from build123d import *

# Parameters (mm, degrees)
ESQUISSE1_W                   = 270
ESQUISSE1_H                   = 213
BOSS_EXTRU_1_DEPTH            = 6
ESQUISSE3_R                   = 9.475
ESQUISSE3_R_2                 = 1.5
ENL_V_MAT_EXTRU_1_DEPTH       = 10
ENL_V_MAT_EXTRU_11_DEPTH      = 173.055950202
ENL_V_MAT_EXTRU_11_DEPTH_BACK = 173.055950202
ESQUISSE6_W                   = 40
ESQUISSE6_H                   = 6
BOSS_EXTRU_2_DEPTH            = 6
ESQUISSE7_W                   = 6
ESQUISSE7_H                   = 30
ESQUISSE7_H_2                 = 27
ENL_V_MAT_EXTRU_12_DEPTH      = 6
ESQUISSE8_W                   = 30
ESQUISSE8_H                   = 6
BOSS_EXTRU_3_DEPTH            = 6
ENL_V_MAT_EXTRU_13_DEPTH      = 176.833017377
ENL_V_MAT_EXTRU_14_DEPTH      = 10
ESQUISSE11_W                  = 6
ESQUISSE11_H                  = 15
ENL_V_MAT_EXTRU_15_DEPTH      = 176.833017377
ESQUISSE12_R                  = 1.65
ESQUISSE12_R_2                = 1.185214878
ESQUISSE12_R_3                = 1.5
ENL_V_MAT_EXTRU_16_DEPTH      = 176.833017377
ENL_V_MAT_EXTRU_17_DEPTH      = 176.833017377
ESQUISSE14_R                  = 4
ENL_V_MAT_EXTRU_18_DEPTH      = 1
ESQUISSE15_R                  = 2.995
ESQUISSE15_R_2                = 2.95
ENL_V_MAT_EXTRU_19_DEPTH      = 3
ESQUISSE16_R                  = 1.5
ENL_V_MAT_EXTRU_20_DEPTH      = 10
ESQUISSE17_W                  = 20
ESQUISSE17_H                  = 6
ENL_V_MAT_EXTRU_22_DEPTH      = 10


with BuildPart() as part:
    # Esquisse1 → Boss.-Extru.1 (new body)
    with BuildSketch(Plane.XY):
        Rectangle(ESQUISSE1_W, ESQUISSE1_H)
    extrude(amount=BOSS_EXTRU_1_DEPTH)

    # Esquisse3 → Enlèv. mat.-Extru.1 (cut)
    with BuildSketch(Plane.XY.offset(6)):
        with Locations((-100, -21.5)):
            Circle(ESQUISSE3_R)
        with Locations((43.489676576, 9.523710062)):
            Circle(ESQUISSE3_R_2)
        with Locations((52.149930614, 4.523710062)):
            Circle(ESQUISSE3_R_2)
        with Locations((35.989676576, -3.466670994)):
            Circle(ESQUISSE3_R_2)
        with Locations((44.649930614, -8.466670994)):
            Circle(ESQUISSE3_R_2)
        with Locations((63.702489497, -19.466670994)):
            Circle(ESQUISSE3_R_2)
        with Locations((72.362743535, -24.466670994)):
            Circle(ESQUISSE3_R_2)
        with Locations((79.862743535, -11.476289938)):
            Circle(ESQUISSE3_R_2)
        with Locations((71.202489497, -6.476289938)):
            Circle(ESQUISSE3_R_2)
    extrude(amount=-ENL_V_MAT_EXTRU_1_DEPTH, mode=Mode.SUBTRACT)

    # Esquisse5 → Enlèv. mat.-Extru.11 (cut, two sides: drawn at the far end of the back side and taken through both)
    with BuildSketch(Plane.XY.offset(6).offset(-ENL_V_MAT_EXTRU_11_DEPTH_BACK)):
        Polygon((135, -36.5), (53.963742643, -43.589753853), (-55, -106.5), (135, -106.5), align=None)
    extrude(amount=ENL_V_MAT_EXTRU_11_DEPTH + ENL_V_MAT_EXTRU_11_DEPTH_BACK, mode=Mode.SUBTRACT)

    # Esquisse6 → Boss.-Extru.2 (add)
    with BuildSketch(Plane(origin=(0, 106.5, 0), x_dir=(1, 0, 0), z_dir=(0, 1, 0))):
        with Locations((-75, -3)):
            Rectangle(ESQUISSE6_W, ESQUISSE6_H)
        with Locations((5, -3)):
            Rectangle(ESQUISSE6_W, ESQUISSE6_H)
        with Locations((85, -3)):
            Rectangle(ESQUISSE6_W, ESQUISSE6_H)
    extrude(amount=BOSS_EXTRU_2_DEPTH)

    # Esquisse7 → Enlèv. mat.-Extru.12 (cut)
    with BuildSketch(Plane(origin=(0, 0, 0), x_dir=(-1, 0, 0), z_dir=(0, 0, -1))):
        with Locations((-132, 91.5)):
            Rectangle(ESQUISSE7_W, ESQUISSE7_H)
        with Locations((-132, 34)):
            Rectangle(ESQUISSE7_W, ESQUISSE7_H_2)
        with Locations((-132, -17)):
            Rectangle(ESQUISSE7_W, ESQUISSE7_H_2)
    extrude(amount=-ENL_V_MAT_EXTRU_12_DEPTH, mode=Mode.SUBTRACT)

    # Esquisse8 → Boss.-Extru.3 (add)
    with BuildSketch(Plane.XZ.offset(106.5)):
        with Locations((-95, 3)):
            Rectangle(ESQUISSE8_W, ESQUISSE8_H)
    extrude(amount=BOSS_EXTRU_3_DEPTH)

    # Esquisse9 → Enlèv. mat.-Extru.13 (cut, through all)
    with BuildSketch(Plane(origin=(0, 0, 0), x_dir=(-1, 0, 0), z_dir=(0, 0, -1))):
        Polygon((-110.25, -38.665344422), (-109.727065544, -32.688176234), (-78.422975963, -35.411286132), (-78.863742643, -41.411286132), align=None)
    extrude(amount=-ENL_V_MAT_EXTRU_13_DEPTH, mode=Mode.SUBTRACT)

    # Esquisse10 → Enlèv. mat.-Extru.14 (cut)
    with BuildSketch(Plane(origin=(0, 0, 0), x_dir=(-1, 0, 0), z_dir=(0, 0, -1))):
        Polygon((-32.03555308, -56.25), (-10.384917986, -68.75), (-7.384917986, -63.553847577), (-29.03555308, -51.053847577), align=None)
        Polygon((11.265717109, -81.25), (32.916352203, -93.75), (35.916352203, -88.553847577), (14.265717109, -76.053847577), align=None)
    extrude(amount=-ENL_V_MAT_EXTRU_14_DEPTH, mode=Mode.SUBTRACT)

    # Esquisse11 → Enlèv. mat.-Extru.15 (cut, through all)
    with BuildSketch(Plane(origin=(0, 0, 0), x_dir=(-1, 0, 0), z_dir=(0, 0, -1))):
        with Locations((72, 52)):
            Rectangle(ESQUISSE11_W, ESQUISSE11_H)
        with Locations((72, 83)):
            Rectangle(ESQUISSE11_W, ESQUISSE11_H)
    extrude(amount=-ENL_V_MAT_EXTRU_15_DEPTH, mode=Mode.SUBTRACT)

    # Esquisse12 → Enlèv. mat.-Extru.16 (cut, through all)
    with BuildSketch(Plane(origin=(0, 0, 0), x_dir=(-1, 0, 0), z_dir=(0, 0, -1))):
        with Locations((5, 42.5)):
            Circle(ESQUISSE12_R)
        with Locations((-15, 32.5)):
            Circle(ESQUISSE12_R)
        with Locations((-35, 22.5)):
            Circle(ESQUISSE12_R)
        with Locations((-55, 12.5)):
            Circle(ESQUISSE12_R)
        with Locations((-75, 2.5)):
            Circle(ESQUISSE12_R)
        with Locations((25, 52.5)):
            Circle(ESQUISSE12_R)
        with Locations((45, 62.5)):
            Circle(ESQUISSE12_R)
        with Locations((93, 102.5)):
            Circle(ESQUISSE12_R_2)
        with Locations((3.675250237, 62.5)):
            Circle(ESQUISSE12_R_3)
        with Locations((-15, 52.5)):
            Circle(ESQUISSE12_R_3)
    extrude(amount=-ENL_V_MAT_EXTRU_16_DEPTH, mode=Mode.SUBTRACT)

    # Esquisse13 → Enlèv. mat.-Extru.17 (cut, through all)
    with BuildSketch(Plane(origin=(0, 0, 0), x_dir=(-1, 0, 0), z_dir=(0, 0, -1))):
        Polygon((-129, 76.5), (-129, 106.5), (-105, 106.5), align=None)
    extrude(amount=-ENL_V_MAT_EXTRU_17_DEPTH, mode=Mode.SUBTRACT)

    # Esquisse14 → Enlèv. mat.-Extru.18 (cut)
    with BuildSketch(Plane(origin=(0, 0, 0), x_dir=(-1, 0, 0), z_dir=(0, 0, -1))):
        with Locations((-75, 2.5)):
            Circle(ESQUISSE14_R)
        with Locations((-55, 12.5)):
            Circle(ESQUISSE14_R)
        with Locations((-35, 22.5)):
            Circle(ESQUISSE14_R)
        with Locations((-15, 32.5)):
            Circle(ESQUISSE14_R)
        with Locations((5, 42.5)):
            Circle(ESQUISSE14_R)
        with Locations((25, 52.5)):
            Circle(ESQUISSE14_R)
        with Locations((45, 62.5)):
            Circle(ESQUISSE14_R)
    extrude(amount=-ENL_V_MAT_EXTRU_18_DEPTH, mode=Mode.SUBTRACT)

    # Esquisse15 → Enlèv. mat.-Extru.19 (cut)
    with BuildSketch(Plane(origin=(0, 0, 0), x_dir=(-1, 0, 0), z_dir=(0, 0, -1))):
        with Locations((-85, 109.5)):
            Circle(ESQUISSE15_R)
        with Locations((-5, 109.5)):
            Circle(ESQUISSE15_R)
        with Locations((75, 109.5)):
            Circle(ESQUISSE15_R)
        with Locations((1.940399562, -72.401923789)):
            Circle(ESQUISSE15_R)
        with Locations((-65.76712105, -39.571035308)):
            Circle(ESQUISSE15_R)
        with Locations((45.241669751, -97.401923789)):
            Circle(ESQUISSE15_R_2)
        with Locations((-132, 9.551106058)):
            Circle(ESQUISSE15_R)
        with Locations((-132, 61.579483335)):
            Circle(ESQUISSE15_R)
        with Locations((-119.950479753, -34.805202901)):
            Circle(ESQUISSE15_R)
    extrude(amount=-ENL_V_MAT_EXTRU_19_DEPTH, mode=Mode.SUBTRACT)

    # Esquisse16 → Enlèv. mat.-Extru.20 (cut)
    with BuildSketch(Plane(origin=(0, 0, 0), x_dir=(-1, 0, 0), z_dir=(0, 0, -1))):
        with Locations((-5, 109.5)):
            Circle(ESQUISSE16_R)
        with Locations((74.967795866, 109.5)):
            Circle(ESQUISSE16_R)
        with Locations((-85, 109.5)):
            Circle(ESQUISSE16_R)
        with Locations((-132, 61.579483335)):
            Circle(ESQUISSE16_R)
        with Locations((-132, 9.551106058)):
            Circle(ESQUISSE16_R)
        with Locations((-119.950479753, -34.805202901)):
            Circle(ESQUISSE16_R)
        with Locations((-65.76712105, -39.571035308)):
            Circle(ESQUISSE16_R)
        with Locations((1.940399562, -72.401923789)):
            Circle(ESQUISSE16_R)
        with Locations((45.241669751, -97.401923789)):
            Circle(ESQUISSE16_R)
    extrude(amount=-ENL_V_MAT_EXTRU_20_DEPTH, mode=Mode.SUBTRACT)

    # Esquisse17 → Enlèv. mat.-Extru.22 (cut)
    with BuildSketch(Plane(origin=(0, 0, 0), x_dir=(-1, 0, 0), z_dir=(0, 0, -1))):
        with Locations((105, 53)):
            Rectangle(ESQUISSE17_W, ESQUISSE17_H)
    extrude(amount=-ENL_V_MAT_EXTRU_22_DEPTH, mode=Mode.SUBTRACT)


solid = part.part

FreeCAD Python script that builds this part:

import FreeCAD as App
import Part
import Sketcher
Q = App.Units.Quantity

doc = App.newDocument("Part")
body = doc.addObject("PartDesign::Body", "Body")

sketch1 = body.newObject("Sketcher::SketchObject", "Sketch")
sketch1.AttachmentSupport = (doc.getObject("XY_Plane"), [""])
sketch1.MapMode = "FlatFace"
sketch1.addGeometry(Part.LineSegment(App.Vector(-135, 106, 0), App.Vector(-135, -106, 0)), False)
sketch1.addGeometry(Part.LineSegment(App.Vector(-135, -106, 0), App.Vector(135, -106, 0)), False)
sketch1.addGeometry(Part.LineSegment(App.Vector(135, -106, 0), App.Vector(135, 106, 0)), False)
sketch1.addGeometry(Part.LineSegment(App.Vector(135, 106, 0), App.Vector(-135, 106, 0)), False)
sketch1.addConstraint(Sketcher.Constraint("Coincident", 0, 2, 1, 1))
sketch1.addConstraint(Sketcher.Constraint("Coincident", 1, 2, 2, 1))
sketch1.addConstraint(Sketcher.Constraint("Coincident", 2, 2, 3, 1))
sketch1.addConstraint(Sketcher.Constraint("Coincident", 3, 2, 0, 1))
sketch1.addConstraint(Sketcher.Constraint("Vertical", 0))
sketch1.addConstraint(Sketcher.Constraint("Horizontal", 1))
sketch1.addConstraint(Sketcher.Constraint("Vertical", 2))
sketch1.addConstraint(Sketcher.Constraint("Horizontal", 3))
sketch1.addConstraint(Sketcher.Constraint("Symmetric", 0, 2, 2, 2, -1, 1))
sketch1.addConstraint(Sketcher.Constraint("DistanceX", 1, 1, 1, 2, 270.0))
sketch1.addConstraint(Sketcher.Constraint("DistanceY", 0, 2, 0, 1, 213.0))
pad1 = body.newObject("PartDesign::Pad", "Pad")
pad1.Profile = sketch1
pad1.Length = 6

sketch2 = body.newObject("Sketcher::SketchObject", "Sketch001")
sketch2.AttachmentSupport = (doc.getObject("XY_Plane"), [""])
sketch2.MapMode = "FlatFace"
sketch2.AttachmentOffset = App.Placement(App.Vector(0, 0, 6), App.Rotation())
sketch2.addGeometry(Part.Circle(App.Vector(-100, -21.5, 0), App.Vector(0, 0, 1), 9.5), False)
sketch2.addGeometry(Part.Circle(App.Vector(43.5, 9.5, 0), App.Vector(0, 0, 1), 1.5), False)
sketch2.addGeometry(Part.Circle(App.Vector(52.1, 4.5, 0), App.Vector(0, 0, 1), 1.5), False)
sketch2.addGeometry(Part.Circle(App.Vector(36, -3.5, 0), App.Vector(0, 0, 1), 1.5), False)
sketch2.addGeometry(Part.Circle(App.Vector(44.6, -8.5, 0), App.Vector(0, 0, 1), 1.5), False)
sketch2.addGeometry(Part.Circle(App.Vector(63.7, -19.5, 0), App.Vector(0, 0, 1), 1.5), False)
sketch2.addGeometry(Part.Circle(App.Vector(72.4, -24.5, 0), App.Vector(0, 0, 1), 1.5), False)
sketch2.addGeometry(Part.Circle(App.Vector(79.9, -11.5, 0), App.Vector(0, 0, 1), 1.5), False)
sketch2.addGeometry(Part.Circle(App.Vector(71.2, -6.5, 0), App.Vector(0, 0, 1), 1.5), False)
sketch2.addConstraint(Sketcher.Constraint("Equal", 1, 2))
sketch2.addConstraint(Sketcher.Constraint("Equal", 2, 3))
sketch2.addConstraint(Sketcher.Constraint("Equal", 3, 4))
sketch2.addConstraint(Sketcher.Constraint("Equal", 4, 5))
sketch2.addConstraint(Sketcher.Constraint("Equal", 5, 6))
sketch2.addConstraint(Sketcher.Constraint("Equal", 6, 7))
sketch2.addConstraint(Sketcher.Constraint("Equal", 7, 8))
sketch2.addConstraint(Sketcher.Constraint("Diameter", 1, 3.0))
sketch2.addConstraint(Sketcher.Constraint("Diameter", 0, 18.95))
sketch2.addConstraint(Sketcher.Constraint("DistanceX", 0, 3, -1, 1, 100.0))
sketch2.addConstraint(Sketcher.Constraint("DistanceY", 2, 3, 1, 3, 5.0))
sketch2.addConstraint(Sketcher.Constraint("DistanceY", 4, 3, 3, 3, 5.0))
sketch2.addConstraint(Sketcher.Constraint("DistanceY", 5, 3, 4, 3, 11.0))
sketch2.addConstraint(Sketcher.Constraint("DistanceY", 6, 3, 5, 3, 5.0))
sketch2.addConstraint(Sketcher.Constraint("DistanceY", 7, 3, 2, 3, 16.0))
sketch2.addConstraint(Sketcher.Constraint("DistanceY", 7, 3, 8, 3, 5.0))
sketch2.addConstraint(Sketcher.Constraint("DistanceY", 0, 3, -1, 1, 21.5))
sketch2.addConstraint(Sketcher.Constraint("DistanceX", 3, 3, 1, 3, 7.5))
sketch2.addConstraint(Sketcher.Constraint("DistanceX", 4, 3, 2, 3, 7.5))
sketch2.addConstraint(Sketcher.Constraint("DistanceX", 6, 3, 7, 3, 7.5))
sketch2.addConstraint(Sketcher.Constraint("DistanceX", 5, 3, 8, 3, 7.5))
sketch2.addConstraint(Sketcher.Constraint("DistanceY", -1, 1, 1, 3, 9.52371))
sketch2.addConstraint(Sketcher.Constraint("DistanceX", -1, 1, 2, 3, 52.149931))
sketch2.addConstraint(Sketcher.Constraint("DistanceY", 3, 3, -1, 1, 3.466671))
sketch2.addConstraint(Sketcher.Constraint("DistanceX", -1, 1, 5, 3, 63.702489))
sketch2.addConstraint(Sketcher.Constraint("DistanceX", -1, 1, 1, 3, 43.489677))
sketch2.addConstraint(Sketcher.Constraint("DistanceX", -1, 1, 6, 3, 72.362744))
pocket1 = body.newObject("PartDesign::Pocket", "Pocket")
pocket1.Profile = sketch2
pocket1.Length = 10

sketch3 = body.newObject("Sketcher::SketchObject", "Sketch002")
sketch3.AttachmentSupport = (doc.getObject("XY_Plane"), [""])
sketch3.MapMode = "FlatFace"
sketch3.AttachmentOffset = App.Placement(App.Vector(0, 0, 6), App.Rotation())
sketch3.addGeometry(Part.LineSegment(App.Vector(135, -36, 0), App.Vector(54, -44, 0)), False)
sketch3.addGeometry(Part.LineSegment(App.Vector(54, -44, 0), App.Vector(-55, -106, 0)), False)
sketch3.addGeometry(Part.LineSegment(App.Vector(-55, -106, 0), App.Vector(135, -106, 0)), False)
sketch3.addGeometry(Part.LineSegment(App.Vector(135, -106, 0), App.Vector(135, -36, 0)), False)
sketch3.addConstraint(Sketcher.Constraint("Coincident", 0, 2, 1, 1))
sketch3.addConstraint(Sketcher.Constraint("Coincident", 1, 2, 2, 1))
sketch3.addConstraint(Sketcher.Constraint("Coincident", 2, 2, 3, 1))
sketch3.addConstraint(Sketcher.Constraint("Coincident", 3, 2, 0, 1))
sketch3.addConstraint(Sketcher.Constraint("Horizontal", 2))
sketch3.addConstraint(Sketcher.Constraint("Vertical", 3))
sketch3.addConstraint(Sketcher.Constraint("DistanceX", 2, 1, 2, 2, 190.0))
sketch3.addConstraint(Sketcher.Constraint("DistanceY", 3, 1, 3, 2, 70.0))
sketch3.addConstraint(Sketcher.Constraint("Angle", 0, Q("-175 deg")))
sketch3.addConstraint(Sketcher.Constraint("Angle", 1, Q("-150 deg")))
sketch3.addConstraint(Sketcher.Constraint("DistanceX", 1, 2, -1, 1, 55.0))
sketch3.addConstraint(Sketcher.Constraint("DistanceY", 1, 2, -1, 1, 106.5))
pocket2 = body.newObject("PartDesign::Pocket", "Pocket001")
pocket2.Profile = sketch3
pocket2.Type = "ThroughAll"
pocket2.Midplane = True

sketch4 = body.newObject("Sketcher::SketchObject", "Sketch003")
sketch4.AttachmentSupport = (doc.getObject("XZ_Plane"), [""])
sketch4.MapMode = "FlatFace"
sketch4.AttachmentOffset = App.Placement(App.Vector(0, 0, -106.5), App.Rotation())
sketch4.addGeometry(Part.LineSegment(App.Vector(-95, 0, 0), App.Vector(-95, 6, 0)), False)
sketch4.addGeometry(Part.LineSegment(App.Vector(-95, 6, 0), App.Vector(-55, 6, 0)), False)
sketch4.addGeometry(Part.LineSegment(App.Vector(-55, 6, 0), App.Vector(-55, 0, 0)), False)
sketch4.addGeometry(Part.LineSegment(App.Vector(-55, 0, 0), App.Vector(-95, 0, 0)), False)
sketch4.addGeometry(Part.LineSegment(App.Vector(-15, 0, 0), App.Vector(-15, 6, 0)), False)
sketch4.addGeometry(Part.LineSegment(App.Vector(-15, 6, 0), App.Vector(25, 6, 0)), False)
sketch4.addGeometry(Part.LineSegment(App.Vector(25, 6, 0), App.Vector(25, 0, 0)), False)
sketch4.addGeometry(Part.LineSegment(App.Vector(25, 0, 0), App.Vector(-15, 0, 0)), False)
sketch4.addGeometry(Part.LineSegment(App.Vector(65, 0, 0), App.Vector(65, 6, 0)), False)
sketch4.addGeometry(Part.LineSegment(App.Vector(65, 6, 0), App.Vector(105, 6, 0)), False)
sketch4.addGeometry(Part.LineSegment(App.Vector(105, 6, 0), App.Vector(105, 0, 0)), False)
sketch4.addGeometry(Part.LineSegment(App.Vector(105, 0, 0), App.Vector(65, 0, 0)), False)
sketch4.addConstraint(Sketcher.Constraint("Coincident", 0, 2, 1, 1))
sketch4.addConstraint(Sketcher.Constraint("Coincident", 1, 2, 2, 1))
sketch4.addConstraint(Sketcher.Constraint("Coincident", 2, 2, 3, 1))
sketch4.addConstraint(Sketcher.Constraint("Coincident", 3, 2, 0, 1))
sketch4.addConstraint(Sketcher.Constraint("Coincident", 4, 2, 5, 1))
sketch4.addConstraint(Sketcher.Constraint("Coincident", 5, 2, 6, 1))
sketch4.addConstraint(Sketcher.Constraint("Coincident", 6, 2, 7, 1))
sketch4.addConstraint(Sketcher.Constraint("Coincident", 7, 2, 4, 1))
sketch4.addConstraint(Sketcher.Constraint("Coincident", 8, 2, 9, 1))
sketch4.addConstraint(Sketcher.Constraint("Coincident", 9, 2, 10, 1))
sketch4.addConstraint(Sketcher.Constraint("Coincident", 10, 2, 11, 1))
sketch4.addConstraint(Sketcher.Constraint("Coincident", 11, 2, 8, 1))
sketch4.addConstraint(Sketcher.Constraint("Vertical", 0))
sketch4.addConstraint(Sketcher.Constraint("Horizontal", 1))
sketch4.addConstraint(Sketcher.Constraint("Vertical", 2))
sketch4.addConstraint(Sketcher.Constraint("Horizontal", 3))
sketch4.addConstraint(Sketcher.Constraint("Vertical", 4))
sketch4.addConstraint(Sketcher.Constraint("Horizontal", 5))
sketch4.addConstraint(Sketcher.Constraint("Vertical", 6))
sketch4.addConstraint(Sketcher.Constraint("Horizontal", 7))
sketch4.addConstraint(Sketcher.Constraint("Vertical", 8))
sketch4.addConstraint(Sketcher.Constraint("Horizontal", 9))
sketch4.addConstraint(Sketcher.Constraint("Vertical", 10))
sketch4.addConstraint(Sketcher.Constraint("Horizontal", 11))
sketch4.addConstraint(Sketcher.Constraint("PointOnObject", 2, 2, -1))
sketch4.addConstraint(Sketcher.Constraint("PointOnObject", 6, 2, -1))
sketch4.addConstraint(Sketcher.Constraint("PointOnObject", 10, 2, -1))
sketch4.addConstraint(Sketcher.Constraint("Horizontal", 1, 2, 4, 2))
sketch4.addConstraint(Sketcher.Constraint("Horizontal", 5, 2, 8, 2))
sketch4.addConstraint(Sketcher.Constraint("Equal", 3, 5))
sketch4.addConstraint(Sketcher.Constraint("Equal", 7, 9))
sketch4.addConstraint(Sketcher.Constraint("DistanceX", 1, 1, 1, 2, 40.0))
sketch4.addConstraint(Sketcher.Constraint("DistanceY", 0, 1, 0, 2, 6.0))
sketch4.addConstraint(Sketcher.Constraint("DistanceX", 0, 2, -1, 1, 95.0))
sketch4.addConstraint(Sketcher.Constraint("DistanceX", 4, 2, -1, 1, 15.0))
sketch4.addConstraint(Sketcher.Constraint("DistanceX", -1, 1, 8, 2, 65.0))
pad2 = body.newObject("PartDesign::Pad", "Pad001")
pad2.Profile = sketch4
pad2.Length = 6
pad2.Reversed = True

sketch5 = body.newObject("Sketcher::SketchObject", "Sketch004")
sketch5.AttachmentSupport = (doc.getObject("XY_Plane"), [""])
sketch5.MapMode = "FlatFace"
sketch5.addGeometry(Part.LineSegment(App.Vector(135, 106, 0), App.Vector(135, 76, 0)), False)
sketch5.addGeometry(Part.LineSegment(App.Vector(135, 76, 0), App.Vector(129, 76, 0)), False)
sketch5.addGeometry(Part.LineSegment(App.Vector(129, 76, 0), App.Vector(129, 106, 0)), False)
sketch5.addGeometry(Part.LineSegment(App.Vector(129, 106, 0), App.Vector(135, 106, 0)), False)
sketch5.addGeometry(Part.LineSegment(App.Vector(135, 48, 0), App.Vector(135, 20, 0)), False)
sketch5.addGeometry(Part.LineSegment(App.Vector(135, 20, 0), App.Vector(129, 20, 0)), False)
sketch5.addGeometry(Part.LineSegment(App.Vector(129, 20, 0), App.Vector(129, 48, 0)), False)
sketch5.addGeometry(Part.LineSegment(App.Vector(129, 48, 0), App.Vector(135, 48, 0)), False)
sketch5.addGeometry(Part.LineSegment(App.Vector(135, -4, 0), App.Vector(135, -30, 0)), False)
sketch5.addGeometry(Part.LineSegment(App.Vector(135, -30, 0), App.Vector(129, -30, 0)), False)
sketch5.addGeometry(Part.LineSegment(App.Vector(129, -30, 0), App.Vector(129, -4, 0)), False)
sketch5.addGeometry(Part.LineSegment(App.Vector(129, -4, 0), App.Vector(135, -4, 0)), False)
sketch5.addConstraint(Sketcher.Constraint("Coincident", 0, 2, 1, 1))
sketch5.addConstraint(Sketcher.Constraint("Coincident", 1, 2, 2, 1))
sketch5.addConstraint(Sketcher.Constraint("Coincident", 2, 2, 3, 1))
sketch5.addConstraint(Sketcher.Constraint("Coincident", 3, 2, 0, 1))
sketch5.addConstraint(Sketcher.Constraint("Coincident", 4, 2, 5, 1))
sketch5.addConstraint(Sketcher.Constraint("Coincident", 5, 2, 6, 1))
sketch5.addConstraint(Sketcher.Constraint("Coincident", 6, 2, 7, 1))
sketch5.addConstraint(Sketcher.Constraint("Coincident", 7, 2, 4, 1))
sketch5.addConstraint(Sketcher.Constraint("Coincident", 8, 2, 9, 1))
sketch5.addConstraint(Sketcher.Constraint("Coincident", 9, 2, 10, 1))
sketch5.addConstraint(Sketcher.Constraint("Coincident", 10, 2, 11, 1))
sketch5.addConstraint(Sketcher.Constraint("Coincident", 11, 2, 8, 1))
sketch5.addConstraint(Sketcher.Constraint("Vertical", 0))
sketch5.addConstraint(Sketcher.Constraint("Horizontal", 1))
sketch5.addConstraint(Sketcher.Constraint("Vertical", 2))
sketch5.addConstraint(Sketcher.Constraint("Horizontal", 3))
sketch5.addConstraint(Sketcher.Constraint("Vertical", 4))
sketch5.addConstraint(Sketcher.Constraint("Horizontal", 5))
sketch5.addConstraint(Sketcher.Constraint("Vertical", 6))
sketch5.addConstraint(Sketcher.Constraint("Horizontal", 7))
sketch5.addConstraint(Sketcher.Constraint("Vertical", 8))
sketch5.addConstraint(Sketcher.Constraint("Horizontal", 9))
sketch5.addConstraint(Sketcher.Constraint("Vertical", 10))
sketch5.addConstraint(Sketcher.Constraint("Horizontal", 11))
sketch5.addConstraint(Sketcher.Constraint("Vertical", 3, 2, 4, 2))
sketch5.addConstraint(Sketcher.Constraint("Vertical", 2, 2, 5, 2))
sketch5.addConstraint(Sketcher.Constraint("Vertical", 7, 2, 8, 2))
sketch5.addConstraint(Sketcher.Constraint("Vertical", 6, 2, 9, 2))
sketch5.addConstraint(Sketcher.Constraint("Equal", 6, 8))
sketch5.addConstraint(Sketcher.Constraint("DistanceX", 1, 2, 1, 1, 6.0))
sketch5.addConstraint(Sketcher.Constraint("DistanceY", 0, 2, 0, 1, 30.0))
sketch5.addConstraint(Sketcher.Constraint("DistanceY", 4, 2, 4, 1, 27.0))
sketch5.addConstraint(Sketcher.Constraint("DistanceX", -1, 1, 0, 2, 135.0))
sketch5.addConstraint(Sketcher.Constraint("DistanceY", 4, 2, 0, 2, 56.0))
sketch5.addConstraint(Sketcher.Constraint("DistanceY", 8, 2, 4, 2, 51.0))
sketch5.addConstraint(Sketcher.Constraint("DistanceY", -1, 1, 0, 2, 76.5))
pocket3 = body.newObject("PartDesign::Pocket", "Pocket002")
pocket3.Profile = sketch5
pocket3.Length = 6
pocket3.Reversed = True

sketch6 = body.newObject("Sketcher::SketchObject", "Sketch005")
sketch6.AttachmentSupport = (doc.getObject("XZ_Plane"), [""])
sketch6.MapMode = "FlatFace"
sketch6.AttachmentOffset = App.Placement(App.Vector(0, 0, 106.5), App.Rotation())
sketch6.addGeometry(Part.LineSegment(App.Vector(-110, 6, 0), App.Vector(-110, 0, 0)), False)
sketch6.addGeometry(Part.LineSegment(App.Vector(-110, 0, 0), App.Vector(-80, 0, 0)), False)
sketch6.addGeometry(Part.LineSegment(App.Vector(-80, 0, 0), App.Vector(-80, 6, 0)), False)
sketch6.addGeometry(Part.LineSegment(App.Vector(-80, 6, 0), App.Vector(-110, 6, 0)), False)
sketch6.addConstraint(Sketcher.Constraint("Coincident", 0, 2, 1, 1))
sketch6.addConstraint(Sketcher.Constraint("Coincident", 1, 2, 2, 1))
sketch6.addConstraint(Sketcher.Constraint("Coincident", 2, 2, 3, 1))
sketch6.addConstraint(Sketcher.Constraint("Coincident", 3, 2, 0, 1))
sketch6.addConstraint(Sketcher.Constraint("Vertical", 0))
sketch6.addConstraint(Sketcher.Constraint("Horizontal", 1))
sketch6.addConstraint(Sketcher.Constraint("Vertical", 2))
sketch6.addConstraint(Sketcher.Constraint("Horizontal", 3))
sketch6.addConstraint(Sketcher.Constraint("PointOnObject", 0, 2, -1))
sketch6.addConstraint(Sketcher.Constraint("DistanceX", 1, 1, 1, 2, 30.0))
sketch6.addConstraint(Sketcher.Constraint("DistanceY", 0, 2, 0, 1, 6.0))
sketch6.addConstraint(Sketcher.Constraint("DistanceX", 0, 2, -1, 1, 110.0))
pad3 = body.newObject("PartDesign::Pad", "Pad002")
pad3.Profile = sketch6
pad3.Length = 6

sketch7 = body.newObject("Sketcher::SketchObject", "Sketch006")
sketch7.AttachmentSupport = (doc.getObject("XY_Plane"), [""])
sketch7.MapMode = "FlatFace"
sketch7.addGeometry(Part.LineSegment(App.Vector(110, -33, 0), App.Vector(110, -39, 0)), False)
sketch7.addGeometry(Part.LineSegment(App.Vector(110, -39, 0), App.Vector(79, -41, 0)), False)
sketch7.addGeometry(Part.LineSegment(App.Vector(79, -41, 0), App.Vector(78, -35, 0)), False)
sketch7.addGeometry(Part.LineSegment(App.Vector(78, -35, 0), App.Vector(110, -33, 0)), False)
sketch7.addConstraint(Sketcher.Constraint("Coincident", 0, 2, 1, 1))
sketch7.addConstraint(Sketcher.Constraint("Coincident", 1, 2, 2, 1))
sketch7.addConstraint(Sketcher.Constraint("Coincident", 2, 2, 3, 1))
sketch7.addConstraint(Sketcher.Constraint("Coincident", 3, 2, 0, 1))
sketch7.addConstraint(Sketcher.Constraint("Perpendicular", 0, 1))
sketch7.addConstraint(Sketcher.Constraint("Angle", 0, Q("-85 deg")))
sketch7.addConstraint(Sketcher.Constraint("Distance", 0, 6.0))
sketch7.addConstraint(Sketcher.Constraint("DistanceY", 1, 2, 2, 2, 6.0))
sketch7.addConstraint(Sketcher.Constraint("DistanceX", -1, 1, 0, 2, 110.25))
sketch7.addConstraint(Sketcher.Constraint("DistanceY", 1, 2, 0, 2, 2.745942))
sketch7.addConstraint(Sketcher.Constraint("DistanceX", 2, 2, 3, 2, 31.30409))
sketch7.addConstraint(Sketcher.Constraint("DistanceY", 0, 2, -1, 1, 38.665344))
pocket4 = body.newObject("PartDesign::Pocket", "Pocket003")
pocket4.Profile = sketch7
pocket4.Type = "ThroughAll"
pocket4.Reversed = True

sketch8 = body.newObject("Sketcher::SketchObject", "Sketch007")
sketch8.AttachmentSupport = (doc.getObject("XY_Plane"), [""])
sketch8.MapMode = "FlatFace"
sketch8.addGeometry(Part.LineSegment(App.Vector(32, -56, 0), App.Vector(10, -69, 0)), False)
sketch8.addGeometry(Part.LineSegment(App.Vector(10, -69, 0), App.Vector(7, -64, 0)), False)
sketch8.addGeometry(Part.LineSegment(App.Vector(7, -64, 0), App.Vector(29, -51, 0)), False)
sketch8.addGeometry(Part.LineSegment(App.Vector(29, -51, 0), App.Vector(32, -56, 0)), False)
sketch8.addGeometry(Part.LineSegment(App.Vector(-11, -81, 0), App.Vector(-33, -94, 0)), False)
sketch8.addGeometry(Part.LineSegment(App.Vector(-33, -94, 0), App.Vector(-36, -89, 0)), False)
sketch8.addGeometry(Part.LineSegment(App.Vector(-36, -89, 0), App.Vector(-14, -76, 0)), False)
sketch8.addGeometry(Part.LineSegment(App.Vector(-14, -76, 0), App.Vector(-11, -81, 0)), False)
sketch8.addConstraint(Sketcher.Constraint("Coincident", 0, 2, 1, 1))
sketch8.addConstraint(Sketcher.Constraint("Coincident", 1, 2, 2, 1))
sketch8.addConstraint(Sketcher.Constraint("Coincident", 2, 2, 3, 1))
sketch8.addConstraint(Sketcher.Constraint("Coincident", 3, 2, 0, 1))
sketch8.addConstraint(Sketcher.Constraint("Coincident", 4, 2, 5, 1))
sketch8.addConstraint(Sketcher.Constraint("Coincident", 5, 2, 6, 1))
sketch8.addConstraint(Sketcher.Constraint("Coincident", 6, 2, 7, 1))
sketch8.addConstraint(Sketcher.Constraint("Coincident", 7, 2, 4, 1))
sketch8.addConstraint(Sketcher.Constraint("Perpendicular", 0, 1))
sketch8.addConstraint(Sketcher.Constraint("Perpendicular", 1, 2))
sketch8.addConstraint(Sketcher.Constraint("Perpendicular", 2, 3))
sketch8.addConstraint(Sketcher.Constraint("Perpendicular", 3, 4))
sketch8.addConstraint(Sketcher.Constraint("Perpendicular", 4, 5))
sketch8.addConstraint(Sketcher.Constraint("Perpendicular", 5, 6))
sketch8.addConstraint(Sketcher.Constraint("Perpendicular", 6, 7))
sketch8.addConstraint(Sketcher.Constraint("Equal", 2, 4))
sketch8.addConstraint(Sketcher.Constraint("Equal", 3, 5))
sketch8.addConstraint(Sketcher.Constraint("Angle", 0, Q("-150 deg")))
sketch8.addConstraint(Sketcher.Constraint("Distance", 0, 25.0))
sketch8.addConstraint(Sketcher.Constraint("Distance", 1, 6.0))
sketch8.addConstraint(Sketcher.Constraint("DistanceY", 4, 2, 0, 2, 25.0))
sketch8.addConstraint(Sketcher.Constraint("DistanceY", 0, 2, -1, 1, 68.75))
sketch8.addConstraint(Sketcher.Constraint("DistanceX", 4, 2, 0, 2, 43.30127))
sketch8.addConstraint(Sketcher.Constraint("DistanceX", -1, 1, 0, 2, 10.384918))
pocket5 = body.newObject("PartDesign::Pocket", "Pocket004")
pocket5.Profile = sketch8
pocket5.Length = 10
pocket5.Reversed = True

sketch9 = body.newObject("Sketcher::SketchObject", "Sketch008")
sketch9.AttachmentSupport = (doc.getObject("XY_Plane"), [""])
sketch9.MapMode = "FlatFace"
sketch9.addGeometry(Part.LineSegment(App.Vector(-69, 60, 0), App.Vector(-69, 44, 0)), False)
sketch9.addGeometry(Part.LineSegment(App.Vector(-69, 44, 0), App.Vector(-75, 44, 0)), False)
sketch9.addGeometry(Part.LineSegment(App.Vector(-75, 44, 0), App.Vector(-75, 60, 0)), False)
sketch9.addGeometry(Part.LineSegment(App.Vector(-75, 60, 0), App.Vector(-69, 60, 0)), False)
sketch9.addGeometry(Part.LineSegment(App.Vector(-69, 90, 0), App.Vector(-69, 76, 0)), False)
sketch9.addGeometry(Part.LineSegment(App.Vector(-69, 76, 0), App.Vector(-75, 76, 0)), False)
sketch9.addGeometry(Part.LineSegment(App.Vector(-75, 76, 0), App.Vector(-75, 90, 0)), False)
sketch9.addGeometry(Part.LineSegment(App.Vector(-75, 90, 0), App.Vector(-69, 90, 0)), False)
sketch9.addConstraint(Sketcher.Constraint("Coincident", 0, 2, 1, 1))
sketch9.addConstraint(Sketcher.Constraint("Coincident", 1, 2, 2, 1))
sketch9.addConstraint(Sketcher.Constraint("Coincident", 2, 2, 3, 1))
sketch9.addConstraint(Sketcher.Constraint("Coincident", 3, 2, 0, 1))
sketch9.addConstraint(Sketcher.Constraint("Coincident", 4, 2, 5, 1))
sketch9.addConstraint(Sketcher.Constraint("Coincident", 5, 2, 6, 1))
sketch9.addConstraint(Sketcher.Constraint("Coincident", 6, 2, 7, 1))
sketch9.addConstraint(Sketcher.Constraint("Coincident", 7, 2, 4, 1))
sketch9.addConstraint(Sketcher.Constraint("Vertical", 0))
sketch9.addConstraint(Sketcher.Constraint("Horizontal", 1))
sketch9.addConstraint(Sketcher.Constraint("Vertical", 2))
sketch9.addConstraint(Sketcher.Constraint("Horizontal", 3))
sketch9.addConstraint(Sketcher.Constraint("Vertical", 4))
sketch9.addConstraint(Sketcher.Constraint("Horizontal", 5))
sketch9.addConstraint(Sketcher.Constraint("Vertical", 6))
sketch9.addConstraint(Sketcher.Constraint("Horizontal", 7))
sketch9.addConstraint(Sketcher.Constraint("Vertical", 3, 2, 4, 2))
sketch9.addConstraint(Sketcher.Constraint("Vertical", 2, 2, 5, 2))
sketch9.addConstraint(Sketcher.Constraint("Equal", 2, 4))
sketch9.addConstraint(Sketcher.Constraint("DistanceX", 1, 2, 1, 1, 6.0))
sketch9.addConstraint(Sketcher.Constraint("DistanceY", 0, 2, 0, 1, 15.0))
sketch9.addConstraint(Sketcher.Constraint("DistanceX", 0, 2, -1, 1, 69.0))
sketch9.addConstraint(Sketcher.Constraint("DistanceY", 3, 2, 4, 2, 16.0))
sketch9.addConstraint(Sketcher.Constraint("DistanceY", -1, 1, 0, 2, 44.5))
pocket6 = body.newObject("PartDesign::Pocket", "Pocket005")
pocket6.Profile = sketch9
pocket6.Type = "ThroughAll"
pocket6.Reversed = True

sketch10 = body.newObject("Sketcher::SketchObject", "Sketch009")
sketch10.AttachmentSupport = (doc.getObject("XY_Plane"), [""])
sketch10.MapMode = "FlatFace"
sketch10.addGeometry(Part.Circle(App.Vector(-5, 42.5, 0), App.Vector(0, 0, 1), 1.6), False)
sketch10.addGeometry(Part.Circle(App.Vector(15, 32.5, 0), App.Vector(0, 0, 1), 1.6), False)
sketch10.addGeometry(Part.Circle(App.Vector(35, 22.5, 0), App.Vector(0, 0, 1), 1.6), False)
sketch10.addGeometry(Part.Circle(App.Vector(55, 12.5, 0), App.Vector(0, 0, 1), 1.6), False)
sketch10.addGeometry(Part.Circle(App.Vector(75, 2.5, 0), App.Vector(0, 0, 1), 1.6), False)
sketch10.addGeometry(Part.Circle(App.Vector(-25, 52.5, 0), App.Vector(0, 0, 1), 1.6), False)
sketch10.addGeometry(Part.Circle(App.Vector(-45, 62.5, 0), App.Vector(0, 0, 1), 1.6), False)
sketch10.addGeometry(Part.Circle(App.Vector(-93, 102.5, 0), App.Vector(0, 0, 1), 1.2), False)
sketch10.addGeometry(Part.Circle(App.Vector(-3.7, 62.5, 0), App.Vector(0, 0, 1), 1.5), False)
sketch10.addGeometry(Part.Circle(App.Vector(15, 52.5, 0), App.Vector(0, 0, 1), 1.5), False)
sketch10.addConstraint(Sketcher.Constraint("Equal", 0, 1))
sketch10.addConstraint(Sketcher.Constraint("Equal", 1, 2))
sketch10.addConstraint(Sketcher.Constraint("Equal", 2, 3))
sketch10.addConstraint(Sketcher.Constraint("Equal", 3, 4))
sketch10.addConstraint(Sketcher.Constraint("Equal", 4, 5))
sketch10.addConstraint(Sketcher.Constraint("Equal", 5, 6))
sketch10.addConstraint(Sketcher.Constraint("Equal", 8, 9))
sketch10.addConstraint(Sketcher.Constraint("Horizontal", 6, 3, 8, 3))
sketch10.addConstraint(Sketcher.Constraint("Horizontal", 5, 3, 9, 3))
sketch10.addConstraint(Sketcher.Constraint("Vertical", 1, 3, 9, 3))
sketch10.addConstraint(Sketcher.Constraint("Diameter", 8, 3.0))
sketch10.addConstraint(Sketcher.Constraint("Diameter", 0, 3.3))
sketch10.addConstraint(Sketcher.Constraint("DistanceX", 0, 3, -1, 1, 5.0))
sketch10.addConstraint(Sketcher.Constraint("DistanceX", -1, 1, 1, 3, 15.0))
sketch10.addConstraint(Sketcher.Constraint("DistanceX", -1, 1, 2, 3, 35.0))
sketch10.addConstraint(Sketcher.Constraint("DistanceX", -1, 1, 3, 3, 55.0))
sketch10.addConstraint(Sketcher.Constraint("DistanceX", -1, 1, 4, 3, 75.0))
sketch10.addConstraint(Sketcher.Constraint("DistanceX", 5, 3, -1, 1, 25.0))
sketch10.addConstraint(Sketcher.Constraint("DistanceX", 6, 3, -1, 1, 45.0))
sketch10.addConstraint(Sketcher.Constraint("DistanceX", 7, 3, -1, 1, 93.0))
sketch10.addConstraint(Sketcher.Constraint("DistanceY", 1, 3, 0, 3, 10.0))
sketch10.addConstraint(Sketcher.Constraint("DistanceY", 2, 3, 1, 3, 10.0))
sketch10.addConstraint(Sketcher.Constraint("DistanceY", 3, 3, 2, 3, 10.0))
sketch10.addConstraint(Sketcher.Constraint("DistanceY", 4, 3, 3, 3, 10.0))
sketch10.addConstraint(Sketcher.Constraint("DistanceY", 0, 3, 5, 3, 10.0))
sketch10.addConstraint(Sketcher.Constraint("DistanceY", 5, 3, 6, 3, 10.0))
sketch10.addConstraint(Sketcher.Constraint("DistanceY", 6, 3, 7, 3, 40.0))
sketch10.addConstraint(Sketcher.Constraint("DistanceY", -1, 1, 0, 3, 42.5))
sketch10.addConstraint(Sketcher.Constraint("Diameter", 7, 2.37043))
sketch10.addConstraint(Sketcher.Constraint("DistanceX", 8, 3, -1, 1, 3.67525))
pocket7 = body.newObject("PartDesign::Pocket", "Pocket006")
pocket7.Profile = sketch10
pocket7.Type = "ThroughAll"
pocket7.Reversed = True

sketch11 = body.newObject("Sketcher::SketchObject", "Sketch010")
sketch11.AttachmentSupport = (doc.getObject("XY_Plane"), [""])
sketch11.MapMode = "FlatFace"
sketch11.addGeometry(Part.LineSegment(App.Vector(129, 106, 0), App.Vector(129, 76, 0)), False)
sketch11.addGeometry(Part.LineSegment(App.Vector(129, 76, 0), App.Vector(105, 106, 0)), False)
sketch11.addGeometry(Part.LineSegment(App.Vector(105, 106, 0), App.Vector(129, 106, 0)), False)
sketch11.addConstraint(Sketcher.Constraint("Coincident", 0, 2, 1, 1))
sketch11.addConstraint(Sketcher.Constraint("Coincident", 1, 2, 2, 1))
sketch11.addConstraint(Sketcher.Constraint("Coincident", 2, 2, 0, 1))
sketch11.addConstraint(Sketcher.Constraint("Vertical", 0))
sketch11.addConstraint(Sketcher.Constraint("Horizontal", 2))
sketch11.addConstraint(Sketcher.Constraint("DistanceX", 2, 1, 2, 2, 24.0))
sketch11.addConstraint(Sketcher.Constraint("DistanceY", 0, 2, 0, 1, 30.0))
sketch11.addConstraint(Sketcher.Constraint("DistanceX", -1, 1, 0, 2, 129.0))
sketch11.addConstraint(Sketcher.Constraint("DistanceY", -1, 1, 0, 2, 76.5))
pocket8 = body.newObject("PartDesign::Pocket", "Pocket007")
pocket8.Profile = sketch11
pocket8.Type = "ThroughAll"
pocket8.Reversed = True

sketch12 = body.newObject("Sketcher::SketchObject", "Sketch011")
sketch12.AttachmentSupport = (doc.getObject("XY_Plane"), [""])
sketch12.MapMode = "FlatFace"
sketch12.addGeometry(Part.Circle(App.Vector(75, 2.5, 0), App.Vector(0, 0, 1), 4), False)
sketch12.addGeometry(Part.Circle(App.Vector(55, 12.5, 0), App.Vector(0, 0, 1), 4), False)
sketch12.addGeometry(Part.Circle(App.Vector(35, 22.5, 0), App.Vector(0, 0, 1), 4), False)
sketch12.addGeometry(Part.Circle(App.Vector(15, 32.5, 0), App.Vector(0, 0, 1), 4), False)
sketch12.addGeometry(Part.Circle(App.Vector(-5, 42.5, 0), App.Vector(0, 0, 1), 4), False)
sketch12.addGeometry(Part.Circle(App.Vector(-25, 52.5, 0), App.Vector(0, 0, 1), 4), False)
sketch12.addGeometry(Part.Circle(App.Vector(-45, 62.5, 0), App.Vector(0, 0, 1), 4), False)
sketch12.addConstraint(Sketcher.Constraint("Equal", 0, 1))
sketch12.addConstraint(Sketcher.Constraint("Equal", 1, 2))
sketch12.addConstraint(Sketcher.Constraint("Equal", 2, 3))
sketch12.addConstraint(Sketcher.Constraint("Equal", 3, 4))
sketch12.addConstraint(Sketcher.Constraint("Equal", 4, 5))
sketch12.addConstraint(Sketcher.Constraint("Equal", 5, 6))
sketch12.addConstraint(Sketcher.Constraint("Diameter", 0, 8.0))
sketch12.addConstraint(Sketcher.Constraint("DistanceX", -1, 1, 0, 3, 75.0))
sketch12.addConstraint(Sketcher.Constraint("DistanceX", -1, 1, 1, 3, 55.0))
sketch12.addConstraint(Sketcher.Constraint("DistanceX", -1, 1, 2, 3, 35.0))
sketch12.addConstraint(Sketcher.Constraint("DistanceX", -1, 1, 3, 3, 15.0))
sketch12.addConstraint(Sketcher.Constraint("DistanceX", 4, 3, -1, 1, 5.0))
sketch12.addConstraint(Sketcher.Constraint("DistanceX", 5, 3, -1, 1, 25.0))
sketch12.addConstraint(Sketcher.Constraint("DistanceX", 6, 3, -1, 1, 45.0))
sketch12.addConstraint(Sketcher.Constraint("DistanceY", 0, 3, 1, 3, 10.0))
sketch12.addConstraint(Sketcher.Constraint("DistanceY", 1, 3, 2, 3, 10.0))
sketch12.addConstraint(Sketcher.Constraint("DistanceY", 2, 3, 3, 3, 10.0))
sketch12.addConstraint(Sketcher.Constraint("DistanceY", 3, 3, 4, 3, 10.0))
sketch12.addConstraint(Sketcher.Constraint("DistanceY", 4, 3, 5, 3, 10.0))
sketch12.addConstraint(Sketcher.Constraint("DistanceY", 5, 3, 6, 3, 10.0))
sketch12.addConstraint(Sketcher.Constraint("DistanceY", -1, 1, 0, 3, 2.5))
pocket9 = body.newObject("PartDesign::Pocket", "Pocket008")
pocket9.Profile = sketch12
pocket9.Length = 1
pocket9.Reversed = True

sketch13 = body.newObject("Sketcher::SketchObject", "Sketch012")
sketch13.AttachmentSupport = (doc.getObject("XY_Plane"), [""])
sketch13.MapMode = "FlatFace"
sketch13.addGeometry(Part.Circle(App.Vector(85, 109.5, 0), App.Vector(0, 0, 1), 3), False)
sketch13.addGeometry(Part.Circle(App.Vector(5, 109.5, 0), App.Vector(0, 0, 1), 3), False)
sketch13.addGeometry(Part.Circle(App.Vector(-75, 109.5, 0), App.Vector(0, 0, 1), 3), False)
sketch13.addGeometry(Part.Circle(App.Vector(-1.9, -72.4, 0), App.Vector(0, 0, 1), 3), False)
sketch13.addGeometry(Part.Circle(App.Vector(65.8, -39.6, 0), App.Vector(0, 0, 1), 3), False)
sketch13.addGeometry(Part.Circle(App.Vector(-45.2, -97.4, 0), App.Vector(0, 0, 1), 3), False)
sketch13.addGeometry(Part.Circle(App.Vector(132, 9.6, 0), App.Vector(0, 0, 1), 3), False)
sketch13.addGeometry(Part.Circle(App.Vector(132, 61.6, 0), App.Vector(0, 0, 1), 3), False)
sketch13.addGeometry(Part.Circle(App.Vector(120, -34.8, 0), App.Vector(0, 0, 1), 3), False)
sketch13.addConstraint(Sketcher.Constraint("Equal", 0, 1))
sketch13.addConstraint(Sketcher.Constraint("Equal", 1, 2))
sketch13.addConstraint(Sketcher.Constraint("Equal", 2, 3))
sketch13.addConstraint(Sketcher.Constraint("Equal", 3, 4))
sketch13.addConstraint(Sketcher.Constraint("Equal", 4, 6))
sketch13.addConstraint(Sketcher.Constraint("Equal", 6, 7))
sketch13.addConstraint(Sketcher.Constraint("Equal", 7, 8))
sketch13.addConstraint(Sketcher.Constraint("Horizontal", 0, 3, 1, 3))
sketch13.addConstraint(Sketcher.Constraint("Horizontal", 1, 3, 2, 3))
sketch13.addConstraint(Sketcher.Constraint("Vertical", 6, 3, 7, 3))
sketch13.addConstraint(Sketcher.Constraint("Diameter", 5, 5.9))
sketch13.addConstraint(Sketcher.Constraint("Diameter", 0, 5.99))
sketch13.addConstraint(Sketcher.Constraint("DistanceX", -1, 1, 0, 3, 85.0))
sketch13.addConstraint(Sketcher.Constraint("DistanceX", -1, 1, 1, 3, 5.0))
sketch13.addConstraint(Sketcher.Constraint("DistanceX", 2, 3, -1, 1, 75.0))
sketch13.addConstraint(Sketcher.Constraint("DistanceX", -1, 1, 6, 3, 132.0))
sketch13.addConstraint(Sketcher.Constraint("DistanceY", 5, 3, 3, 3, 25.0))
sketch13.addConstraint(Sketcher.Constraint("DistanceY", -1, 1, 0, 3, 109.5))
sketch13.addConstraint(Sketcher.Constraint("DistanceX", 3, 3, -1, 1, 1.9404))
sketch13.addConstraint(Sketcher.Constraint("DistanceX", -1, 1, 4, 3, 65.767121))
sketch13.addConstraint(Sketcher.Constraint("DistanceX", 5, 3, -1, 1, 45.24167))
sketch13.addConstraint(Sketcher.Constraint("DistanceX", -1, 1, 8, 3, 119.95048))
sketch13.addConstraint(Sketcher.Constraint("DistanceY", 3, 3, 4, 3, 32.830888))
sketch13.addConstraint(Sketcher.Constraint("DistanceY", 4, 3, 6, 3, 49.122141))
sketch13.addConstraint(Sketcher.Constraint("DistanceY", 4, 3, 7, 3, 101.150519))
sketch13.addConstraint(Sketcher.Constraint("DistanceY", 8, 3, 6, 3, 44.356309))
sketch13.addConstraint(Sketcher.Constraint("DistanceY", 3, 3, -1, 1, 72.401924))
pocket10 = body.newObject("PartDesign::Pocket", "Pocket009")
pocket10.Profile = sketch13
pocket10.Length = 3
pocket10.Reversed = True

sketch14 = body.newObject("Sketcher::SketchObject", "Sketch013")
sketch14.AttachmentSupport = (doc.getObject("XY_Plane"), [""])
sketch14.MapMode = "FlatFace"
sketch14.addGeometry(Part.Circle(App.Vector(5, 109.5, 0), App.Vector(0, 0, 1), 1.5), False)
sketch14.addGeometry(Part.Circle(App.Vector(-75, 109.5, 0), App.Vector(0, 0, 1), 1.5), False)
sketch14.addGeometry(Part.Circle(App.Vector(85, 109.5, 0), App.Vector(0, 0, 1), 1.5), False)
sketch14.addGeometry(Part.Circle(App.Vector(132, 61.6, 0), App.Vector(0, 0, 1), 1.5), False)
sketch14.addGeometry(Part.Circle(App.Vector(132, 9.6, 0), App.Vector(0, 0, 1), 1.5), False)
sketch14.addGeometry(Part.Circle(App.Vector(120, -34.8, 0), App.Vector(0, 0, 1), 1.5), False)
sketch14.addGeometry(Part.Circle(App.Vector(65.8, -39.6, 0), App.Vector(0, 0, 1), 1.5), False)
sketch14.addGeometry(Part.Circle(App.Vector(-1.9, -72.4, 0), App.Vector(0, 0, 1), 1.5), False)
sketch14.addGeometry(Part.Circle(App.Vector(-45.2, -97.4, 0), App.Vector(0, 0, 1), 1.5), False)
sketch14.addConstraint(Sketcher.Constraint("Equal", 0, 1))
sketch14.addConstraint(Sketcher.Constraint("Equal", 1, 2))
sketch14.addConstraint(Sketcher.Constraint("Equal", 2, 3))
sketch14.addConstraint(Sketcher.Constraint("Equal", 3, 4))
sketch14.addConstraint(Sketcher.Constraint("Equal", 4, 5))
sketch14.addConstraint(Sketcher.Constraint("Equal", 5, 6))
sketch14.addConstraint(Sketcher.Constraint("Equal", 6, 7))
sketch14.addConstraint(Sketcher.Constraint("Equal", 7, 8))
sketch14.addConstraint(Sketcher.Constraint("Horizontal", 0, 3, 1, 3))
sketch14.addConstraint(Sketcher.Constraint("Horizontal", 1, 3, 2, 3))
sketch14.addConstraint(Sketcher.Constraint("Vertical", 3, 3, 4, 3))
sketch14.addConstraint(Sketcher.Constraint("Diameter", 0, 3.0))
sketch14.addConstraint(Sketcher.Constraint("DistanceX", -1, 1, 0, 3, 5.0))
sketch14.addConstraint(Sketcher.Constraint("DistanceX", -1, 1, 2, 3, 85.0))
sketch14.addConstraint(Sketcher.Constraint("DistanceX", -1, 1, 3, 3, 132.0))
sketch14.addConstraint(Sketcher.Constraint("DistanceY", 8, 3, 7, 3, 25.0))
sketch14.addConstraint(Sketcher.Constraint("DistanceY", -1, 1, 0, 3, 109.5))
sketch14.addConstraint(Sketcher.Constraint("DistanceX", 7, 3, -1, 1, 1.9404))
sketch14.addConstraint(Sketcher.Constraint("DistanceX", -1, 1, 5, 3, 119.95048))
sketch14.addConstraint(Sketcher.Constraint("DistanceX", -1, 1, 6, 3, 65.767121))
sketch14.addConstraint(Sketcher.Constraint("DistanceX", 8, 3, -1, 1, 45.24167))
sketch14.addConstraint(Sketcher.Constraint("DistanceY", 5, 3, 4, 3, 44.356309))
sketch14.addConstraint(Sketcher.Constraint("DistanceY", 6, 3, 4, 3, 49.122141))
sketch14.addConstraint(Sketcher.Constraint("DistanceY", 6, 3, 3, 3, 101.150519))
sketch14.addConstraint(Sketcher.Constraint("DistanceY", 7, 3, 6, 3, 32.830888))
sketch14.addConstraint(Sketcher.Constraint("DistanceX", 1, 3, -1, 1, 74.967796))
sketch14.addConstraint(Sketcher.Constraint("DistanceY", -1, 1, 3, 3, 61.579483))
pocket11 = body.newObject("PartDesign::Pocket", "Pocket010")
pocket11.Profile = sketch14
pocket11.Length = 10
pocket11.Reversed = True

sketch15 = body.newObject("Sketcher::SketchObject", "Sketch014")
sketch15.AttachmentSupport = (doc.getObject("XY_Plane"), [""])
sketch15.MapMode = "FlatFace"
sketch15.addGeometry(Part.LineSegment(App.Vector(-95, 56, 0), App.Vector(-95, 50, 0)), False)
sketch15.addGeometry(Part.LineSegment(App.Vector(-95, 50, 0), App.Vector(-115, 50, 0)), False)
sketch15.addGeometry(Part.LineSegment(App.Vector(-115, 50, 0), App.Vector(-115, 56, 0)), False)
sketch15.addGeometry(Part.LineSegment(App.Vector(-115, 56, 0), App.Vector(-95, 56, 0)), False)
sketch15.addConstraint(Sketcher.Constraint("Coincident", 0, 2, 1, 1))
sketch15.addConstraint(Sketcher.Constraint("Coincident", 1, 2, 2, 1))
sketch15.addConstraint(Sketcher.Constraint("Coincident", 2, 2, 3, 1))
sketch15.addConstraint(Sketcher.Constraint("Coincident", 3, 2, 0, 1))
sketch15.addConstraint(Sketcher.Constraint("Vertical", 0))
sketch15.addConstraint(Sketcher.Constraint("Horizontal", 1))
sketch15.addConstraint(Sketcher.Constraint("Vertical", 2))
sketch15.addConstraint(Sketcher.Constraint("Horizontal", 3))
sketch15.addConstraint(Sketcher.Constraint("DistanceX", 1, 2, 1, 1, 20.0))
sketch15.addConstraint(Sketcher.Constraint("DistanceY", 0, 2, 0, 1, 6.0))
sketch15.addConstraint(Sketcher.Constraint("DistanceX", 0, 2, -1, 1, 95.0))
sketch15.addConstraint(Sketcher.Constraint("DistanceY", -1, 1, 0, 2, 50.0))
pocket12 = body.newObject("PartDesign::Pocket", "Pocket011")
pocket12.Profile = sketch15
pocket12.Length = 10
pocket12.Reversed = True

doc.recompute()
